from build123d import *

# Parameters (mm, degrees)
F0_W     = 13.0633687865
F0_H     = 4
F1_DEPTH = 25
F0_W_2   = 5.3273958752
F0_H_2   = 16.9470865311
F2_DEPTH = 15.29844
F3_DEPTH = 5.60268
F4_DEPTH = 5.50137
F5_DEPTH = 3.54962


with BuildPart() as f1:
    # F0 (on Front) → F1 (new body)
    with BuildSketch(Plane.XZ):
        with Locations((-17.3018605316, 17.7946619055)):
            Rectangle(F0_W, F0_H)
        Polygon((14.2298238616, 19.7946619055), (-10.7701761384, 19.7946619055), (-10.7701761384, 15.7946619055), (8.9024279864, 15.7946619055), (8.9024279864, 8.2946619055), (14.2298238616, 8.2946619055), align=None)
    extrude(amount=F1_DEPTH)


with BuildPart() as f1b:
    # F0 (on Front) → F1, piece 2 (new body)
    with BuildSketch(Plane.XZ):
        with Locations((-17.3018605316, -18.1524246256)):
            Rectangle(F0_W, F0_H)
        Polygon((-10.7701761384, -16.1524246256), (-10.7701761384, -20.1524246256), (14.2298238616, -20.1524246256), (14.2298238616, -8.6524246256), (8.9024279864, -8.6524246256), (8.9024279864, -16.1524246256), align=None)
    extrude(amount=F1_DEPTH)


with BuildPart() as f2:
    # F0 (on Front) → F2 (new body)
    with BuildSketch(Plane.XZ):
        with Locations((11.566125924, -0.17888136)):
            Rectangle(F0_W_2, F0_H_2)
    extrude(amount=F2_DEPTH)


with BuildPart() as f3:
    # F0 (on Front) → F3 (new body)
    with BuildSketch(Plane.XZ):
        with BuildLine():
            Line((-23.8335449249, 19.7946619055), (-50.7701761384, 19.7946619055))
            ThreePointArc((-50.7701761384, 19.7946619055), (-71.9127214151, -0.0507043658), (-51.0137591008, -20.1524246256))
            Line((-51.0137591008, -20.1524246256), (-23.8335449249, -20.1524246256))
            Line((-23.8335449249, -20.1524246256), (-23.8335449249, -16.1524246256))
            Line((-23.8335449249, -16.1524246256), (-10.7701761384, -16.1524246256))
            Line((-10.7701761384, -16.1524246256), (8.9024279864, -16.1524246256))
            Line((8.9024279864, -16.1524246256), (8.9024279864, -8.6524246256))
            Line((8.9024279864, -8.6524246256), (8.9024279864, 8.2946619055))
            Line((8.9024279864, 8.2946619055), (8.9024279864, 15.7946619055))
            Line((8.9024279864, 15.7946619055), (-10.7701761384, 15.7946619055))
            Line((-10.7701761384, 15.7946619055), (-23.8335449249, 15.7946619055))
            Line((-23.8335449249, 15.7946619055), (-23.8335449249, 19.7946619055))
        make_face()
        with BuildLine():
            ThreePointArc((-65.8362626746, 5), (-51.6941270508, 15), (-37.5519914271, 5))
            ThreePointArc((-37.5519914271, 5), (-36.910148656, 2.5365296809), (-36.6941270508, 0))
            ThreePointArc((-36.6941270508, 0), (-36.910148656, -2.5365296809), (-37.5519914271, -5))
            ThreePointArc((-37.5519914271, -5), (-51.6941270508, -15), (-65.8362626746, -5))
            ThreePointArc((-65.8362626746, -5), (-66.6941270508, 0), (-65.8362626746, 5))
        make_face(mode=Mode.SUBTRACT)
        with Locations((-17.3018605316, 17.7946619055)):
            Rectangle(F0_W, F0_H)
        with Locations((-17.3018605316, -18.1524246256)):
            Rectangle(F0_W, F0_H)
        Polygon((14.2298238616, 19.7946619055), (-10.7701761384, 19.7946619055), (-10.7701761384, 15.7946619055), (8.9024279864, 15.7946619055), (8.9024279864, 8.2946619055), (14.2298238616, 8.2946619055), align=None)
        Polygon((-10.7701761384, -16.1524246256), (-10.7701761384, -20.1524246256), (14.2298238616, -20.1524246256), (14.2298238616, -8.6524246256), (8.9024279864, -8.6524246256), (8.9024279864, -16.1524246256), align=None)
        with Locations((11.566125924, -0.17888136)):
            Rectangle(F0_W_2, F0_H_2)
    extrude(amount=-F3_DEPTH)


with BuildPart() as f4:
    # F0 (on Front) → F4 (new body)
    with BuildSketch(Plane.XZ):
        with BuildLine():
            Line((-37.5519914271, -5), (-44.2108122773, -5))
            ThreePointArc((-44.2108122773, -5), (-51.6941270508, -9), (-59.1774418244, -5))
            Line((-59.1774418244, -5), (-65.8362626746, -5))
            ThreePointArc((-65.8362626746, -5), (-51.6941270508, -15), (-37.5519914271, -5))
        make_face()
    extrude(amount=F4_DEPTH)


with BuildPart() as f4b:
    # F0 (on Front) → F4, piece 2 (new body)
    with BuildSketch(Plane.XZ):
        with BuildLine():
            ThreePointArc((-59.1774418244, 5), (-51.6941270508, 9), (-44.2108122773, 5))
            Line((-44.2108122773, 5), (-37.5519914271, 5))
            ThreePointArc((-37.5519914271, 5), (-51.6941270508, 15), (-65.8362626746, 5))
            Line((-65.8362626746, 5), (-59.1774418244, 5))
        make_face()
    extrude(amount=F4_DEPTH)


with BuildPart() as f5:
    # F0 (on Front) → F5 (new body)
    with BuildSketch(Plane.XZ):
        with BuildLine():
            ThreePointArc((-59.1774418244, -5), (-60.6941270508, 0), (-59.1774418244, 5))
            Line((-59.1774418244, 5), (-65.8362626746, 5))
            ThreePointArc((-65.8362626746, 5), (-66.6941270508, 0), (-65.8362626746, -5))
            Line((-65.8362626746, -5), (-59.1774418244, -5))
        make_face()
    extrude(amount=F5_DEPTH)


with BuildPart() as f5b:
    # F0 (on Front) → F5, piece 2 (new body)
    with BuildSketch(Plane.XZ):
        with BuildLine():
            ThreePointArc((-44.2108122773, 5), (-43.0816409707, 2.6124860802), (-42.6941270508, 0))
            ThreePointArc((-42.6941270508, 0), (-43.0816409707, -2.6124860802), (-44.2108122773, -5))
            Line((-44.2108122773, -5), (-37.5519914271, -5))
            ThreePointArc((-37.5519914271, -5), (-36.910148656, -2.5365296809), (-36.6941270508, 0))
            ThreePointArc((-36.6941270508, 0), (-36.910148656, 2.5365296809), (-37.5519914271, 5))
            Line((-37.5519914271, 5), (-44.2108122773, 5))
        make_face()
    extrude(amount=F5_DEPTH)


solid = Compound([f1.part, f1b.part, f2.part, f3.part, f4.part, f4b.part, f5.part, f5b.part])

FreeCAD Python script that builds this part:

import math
import FreeCAD as App
import Part
import Sketcher
from FreeCAD import Vector

doc = App.newDocument("Part")
body = doc.addObject("PartDesign::Body", "Body")

sketch1 = doc.addObject("Sketcher::SketchObject", "Sketch")
body.addObject(sketch1)
sketch1.AttachmentSupport = (doc.XZ_Plane, [""])
sketch1.MapMode = "FlatFace"
sketch1.addGeometry(Part.LineSegment(Vector(-23.8, 19.8, 0), Vector(-23.8, 15.8, 0)), False)
sketch1.addGeometry(Part.LineSegment(Vector(-23.8, 15.8, 0), Vector(8.9, 15.8, 0)), False)
sketch1.addGeometry(Part.LineSegment(Vector(8.9, 15.8, 0), Vector(8.9, 8.3, 0)), False)
sketch1.addGeometry(Part.LineSegment(Vector(8.9, 8.3, 0), Vector(14.2, 8.3, 0)), False)
sketch1.addGeometry(Part.LineSegment(Vector(14.2, 8.3, 0), Vector(14.2, 19.8, 0)), False)
sketch1.addGeometry(Part.LineSegment(Vector(14.2, 19.8, 0), Vector(-23.8, 19.8, 0)), False)
sketch1.addConstraint(Sketcher.Constraint("Coincident", 0, 2, 1, 1))
sketch1.addConstraint(Sketcher.Constraint("Coincident", 1, 2, 2, 1))
sketch1.addConstraint(Sketcher.Constraint("Coincident", 2, 2, 3, 1))
sketch1.addConstraint(Sketcher.Constraint("Coincident", 3, 2, 4, 1))
sketch1.addConstraint(Sketcher.Constraint("Coincident", 4, 2, 5, 1))
sketch1.addConstraint(Sketcher.Constraint("Coincident", 5, 2, 0, 1))
sketch1.addConstraint(Sketcher.Constraint("Vertical", 0))
sketch1.addConstraint(Sketcher.Constraint("Horizontal", 1))
sketch1.addConstraint(Sketcher.Constraint("Vertical", 2))
sketch1.addConstraint(Sketcher.Constraint("Horizontal", 3))
sketch1.addConstraint(Sketcher.Constraint("Vertical", 4))
sketch1.addConstraint(Sketcher.Constraint("Horizontal", 5))
sketch1.addConstraint(Sketcher.Constraint("DistanceY", 0, 2, 0, 1, 4.0))
sketch1.addConstraint(Sketcher.Constraint("DistanceY", 2, 2, 2, 1, 7.5))
sketch1.addConstraint(Sketcher.Constraint("DistanceX", 5, 2, 5, 1, 38.063369))
sketch1.addConstraint(Sketcher.Constraint("DistanceX", 1, 1, 1, 2, 32.735973))
sketch1.addConstraint(Sketcher.Constraint("DistanceY", -1, 1, 0, 2, 15.794662))
sketch1.addConstraint(Sketcher.Constraint("DistanceX", 0, 2, -1, 1, 23.833545))
pad1 = doc.addObject("PartDesign::Pad", "Pad")
body.addObject(pad1)
pad1.Profile = sketch1
pad1.Length = 25
body2 = doc.addObject("PartDesign::Body", "Body001")

sketch2 = doc.addObject("Sketcher::SketchObject", "Sketch001")
body2.addObject(sketch2)
sketch2.AttachmentSupport = (doc.getObject("XZ_Plane001"), [""])
sketch2.MapMode = "FlatFace"
sketch2.addGeometry(Part.LineSegment(Vector(-23.8, -16.2, 0), Vector(-23.8, -20.2, 0)), False)
sketch2.addGeometry(Part.LineSegment(Vector(-23.8, -20.2, 0), Vector(14.2, -20.2, 0)), False)
sketch2.addGeometry(Part.LineSegment(Vector(14.2, -20.2, 0), Vector(14.2, -8.7, 0)), False)
sketch2.addGeometry(Part.LineSegment(Vector(14.2, -8.7, 0), Vector(8.9, -8.7, 0)), False)
sketch2.addGeometry(Part.LineSegment(Vector(8.9, -8.7, 0), Vector(8.9, -16.2, 0)), False)
sketch2.addGeometry(Part.LineSegment(Vector(8.9, -16.2, 0), Vector(-23.8, -16.2, 0)), False)
sketch2.addConstraint(Sketcher.Constraint("Coincident", 0, 2, 1, 1))
sketch2.addConstraint(Sketcher.Constraint("Coincident", 1, 2, 2, 1))
sketch2.addConstraint(Sketcher.Constraint("Coincident", 2, 2, 3, 1))
sketch2.addConstraint(Sketcher.Constraint("Coincident", 3, 2, 4, 1))
sketch2.addConstraint(Sketcher.Constraint("Coincident", 4, 2, 5, 1))
sketch2.addConstraint(Sketcher.Constraint("Coincident", 5, 2, 0, 1))
sketch2.addConstraint(Sketcher.Constraint("Vertical", 0))
sketch2.addConstraint(Sketcher.Constraint("Horizontal", 1))
sketch2.addConstraint(Sketcher.Constraint("Vertical", 2))
sketch2.addConstraint(Sketcher.Constraint("Horizontal", 3))
sketch2.addConstraint(Sketcher.Constraint("Vertical", 4))
sketch2.addConstraint(Sketcher.Constraint("Horizontal", 5))
sketch2.addConstraint(Sketcher.Constraint("DistanceY", 0, 2, 0, 1, 4.0))
sketch2.addConstraint(Sketcher.Constraint("DistanceY", 2, 1, 2, 2, 11.5))
sketch2.addConstraint(Sketcher.Constraint("DistanceX", 1, 1, 1, 2, 38.063369))
sketch2.addConstraint(Sketcher.Constraint("DistanceX", 3, 2, 3, 1, 5.327396))
sketch2.addConstraint(Sketcher.Constraint("DistanceX", 0, 2, -1, 1, 23.833545))
sketch2.addConstraint(Sketcher.Constraint("DistanceY", 0, 2, -1, 1, 20.152425))
pad2 = doc.addObject("PartDesign::Pad", "Pad001")
body2.addObject(pad2)
pad2.Profile = sketch2
pad2.Length = 25
body3 = doc.addObject("PartDesign::Body", "Body002")

sketch3 = doc.addObject("Sketcher::SketchObject", "Sketch002")
body3.addObject(sketch3)
sketch3.AttachmentSupport = (doc.getObject("XZ_Plane002"), [""])
sketch3.MapMode = "FlatFace"
sketch3.addGeometry(Part.LineSegment(Vector(9, 8, 0), Vector(9, -9, 0)), False)
sketch3.addGeometry(Part.LineSegment(Vector(9, -9, 0), Vector(14, -9, 0)), False)
sketch3.addGeometry(Part.LineSegment(Vector(14, -9, 0), Vector(14, 8, 0)), False)
sketch3.addGeometry(Part.LineSegment(Vector(14, 8, 0), Vector(9, 8, 0)), False)
sketch3.addConstraint(Sketcher.Constraint("Coincident", 0, 2, 1, 1))
sketch3.addConstraint(Sketcher.Constraint("Coincident", 1, 2, 2, 1))
sketch3.addConstraint(Sketcher.Constraint("Coincident", 2, 2, 3, 1))
sketch3.addConstraint(Sketcher.Constraint("Coincident", 3, 2, 0, 1))
sketch3.addConstraint(Sketcher.Constraint("Vertical", 0))
sketch3.addConstraint(Sketcher.Constraint("Horizontal", 1))
sketch3.addConstraint(Sketcher.Constraint("Vertical", 2))
sketch3.addConstraint(Sketcher.Constraint("Horizontal", 3))
sketch3.addConstraint(Sketcher.Constraint("DistanceX", 1, 1, 1, 2, 5.327396))
sketch3.addConstraint(Sketcher.Constraint("DistanceY", 0, 2, 0, 1, 16.947087))
sketch3.addConstraint(Sketcher.Constraint("DistanceY", -1, 1, 2, 2, 8.294662))
sketch3.addConstraint(Sketcher.Constraint("DistanceX", -1, 1, 0, 2, 8.902428))
pad3 = doc.addObject("PartDesign::Pad", "Pad002")
body3.addObject(pad3)
pad3.Profile = sketch3
pad3.Length = 15.29844
body4 = doc.addObject("PartDesign::Body", "Body003")

sketch4 = doc.addObject("Sketcher::SketchObject", "Sketch003")
body4.addObject(sketch4)
sketch4.AttachmentSupport = (doc.getObject("XZ_Plane003"), [""])
sketch4.MapMode = "FlatFace"
sketch4.addGeometry(Part.ArcOfCircle(Part.Circle(Vector(-52, 0, 0), Vector(0, 0, 1), 20), math.radians(87), math.radians(273)), False)
sketch4.addGeometry(Part.LineSegment(Vector(-51, -20, 0), Vector(14, -20, 0)), False)
sketch4.addGeometry(Part.LineSegment(Vector(14, -20, 0), Vector(14, 20, 0)), False)
sketch4.addGeometry(Part.LineSegment(Vector(14, 20, 0), Vector(-51, 20, 0)), False)
sketch4.addGeometry(Part.ArcOfCircle(Part.Circle(Vector(-52, 0, 0), Vector(0, 0, 1), 15), math.radians(161), math.radians(199)), False)
sketch4.addGeometry(Part.ArcOfCircle(Part.Circle(Vector(-52, 0, 0), Vector(0, 0, 1), 15), math.radians(19), math.radians(161)), False)
sketch4.addGeometry(Part.ArcOfCircle(Part.Circle(Vector(-52, 0, 0), Vector(0, 0, 1), 15), math.radians(0), math.radians(19.47)), False)
sketch4.addGeometry(Part.ArcOfCircle(Part.Circle(Vector(-52, 0, 0), Vector(0, 0, 1), 15), math.radians(-19.47), math.radians(0)), False)
sketch4.addGeometry(Part.ArcOfCircle(Part.Circle(Vector(-52, 0, 0), Vector(0, 0, 1), 15), math.radians(-161), math.radians(-19)), False)
sketch4.addConstraint(Sketcher.Constraint("Coincident", 0, 2, 1, 1))
sketch4.addConstraint(Sketcher.Constraint("Coincident", 1, 2, 2, 1))
sketch4.addConstraint(Sketcher.Constraint("Coincident", 2, 2, 3, 1))
sketch4.addConstraint(Sketcher.Constraint("Coincident", 3, 2, 0, 1))
sketch4.addConstraint(Sketcher.Constraint("Tangent", 4, 1, 5, 2))
sketch4.addConstraint(Sketcher.Constraint("Tangent", 5, 1, 6, 2))
sketch4.addConstraint(Sketcher.Constraint("Tangent", 6, 1, 7, 2))
sketch4.addConstraint(Sketcher.Constraint("Tangent", 7, 1, 8, 2))
sketch4.addConstraint(Sketcher.Constraint("Tangent", 8, 1, 4, 2))
sketch4.addConstraint(Sketcher.Constraint("Horizontal", 1))
sketch4.addConstraint(Sketcher.Constraint("Vertical", 2))
sketch4.addConstraint(Sketcher.Constraint("Horizontal", 3))
sketch4.addConstraint(Sketcher.Constraint("Coincident", 6, 3, 4, 3))
sketch4.addConstraint(Sketcher.Constraint("Symmetric", 5, 1, 7, 1, -1))
sketch4.addConstraint(Sketcher.Constraint("PointOnObject", 6, 1, -1))
sketch4.addConstraint(Sketcher.Constraint("Horizontal", 4, 1, 5, 1))
sketch4.addConstraint(Sketcher.Constraint("Horizontal", 7, 1, 8, 1))
sketch4.addConstraint(Sketcher.Constraint("Radius", 0, 20.0))
sketch4.addConstraint(Sketcher.Constraint("Radius", 4, 15.0))
sketch4.addConstraint(Sketcher.Constraint("DistanceX", 3, 2, 3, 1, 65.0))
sketch4.addConstraint(Sketcher.Constraint("DistanceY", -1, 1, 4, 1, 5.0))
sketch4.addConstraint(Sketcher.Constraint("DistanceX", 1, 1, 1, 2, 65.243583))
sketch4.addConstraint(Sketcher.Constraint("DistanceY", 2, 1, 2, 2, 39.947087))
sketch4.addConstraint(Sketcher.Constraint("DistanceX", 0, 2, -1, 1, 51.013759))
sketch4.addConstraint(Sketcher.Constraint("DistanceY", -1, 1, 2, 2, 19.794662))
sketch4.addConstraint(Sketcher.Constraint("DistanceX", 5, 1, -1, 1, 37.551991))
pad4 = doc.addObject("PartDesign::Pad", "Pad003")
body4.addObject(pad4)
pad4.Profile = sketch4
pad4.Length = 5.60268
pad4.Reversed = True
body5 = doc.addObject("PartDesign::Body", "Body004")

sketch5 = doc.addObject("Sketcher::SketchObject", "Sketch004")
body5.addObject(sketch5)
sketch5.AttachmentSupport = (doc.getObject("XZ_Plane004"), [""])
sketch5.MapMode = "FlatFace"
sketch5.addGeometry(Part.LineSegment(Vector(-38, -5, 0), Vector(-44, -5, 0)), False)
sketch5.addGeometry(Part.ArcOfCircle(Part.Circle(Vector(-52, 0, 0), Vector(0, 0, 1), 9), math.radians(-146), math.radians(-34)), False)
sketch5.addGeometry(Part.LineSegment(Vector(-59, -5, 0), Vector(-66, -5, 0)), False)
sketch5.addGeometry(Part.ArcOfCircle(Part.Circle(Vector(-52, 0, 0), Vector(0, 0, 1), 15), math.radians(-161), math.radians(-19)), False)
sketch5.addConstraint(Sketcher.Constraint("Coincident", 0, 2, 1, 2))
sketch5.addConstraint(Sketcher.Constraint("Coincident", 1, 1, 2, 1))
sketch5.addConstraint(Sketcher.Constraint("Coincident", 2, 2, 3, 1))
sketch5.addConstraint(Sketcher.Constraint("Coincident", 3, 2, 0, 1))
sketch5.addConstraint(Sketcher.Constraint("Horizontal", 0))
sketch5.addConstraint(Sketcher.Constraint("Horizontal", 2))
sketch5.addConstraint(Sketcher.Constraint("Coincident", 3, 3, 1, 3))
sketch5.addConstraint(Sketcher.Constraint("PointOnObject", 1, 3, -1))
sketch5.addConstraint(Sketcher.Constraint("Horizontal", 0, 2, 1, 1))
sketch5.addConstraint(Sketcher.Constraint("Radius", 1, 9.0))
sketch5.addConstraint(Sketcher.Constraint("Radius", 3, 15.0))
sketch5.addConstraint(Sketcher.Constraint("DistanceY", 0, 2, -1, 1, 5.0))
sketch5.addConstraint(Sketcher.Constraint("DistanceX", 1, 1, -1, 1, 59.177442))
pad5 = doc.addObject("PartDesign::Pad", "Pad004")
body5.addObject(pad5)
pad5.Profile = sketch5
pad5.Length = 5.50137
body6 = doc.addObject("PartDesign::Body", "Body005")

sketch6 = doc.addObject("Sketcher::SketchObject", "Sketch005")
body6.addObject(sketch6)
sketch6.AttachmentSupport = (doc.getObject("XZ_Plane005"), [""])
sketch6.MapMode = "FlatFace"
sketch6.addGeometry(Part.ArcOfCircle(Part.Circle(Vector(-52, 0, 0), Vector(0, 0, 1), 9), math.radians(34), math.radians(146)), False)
sketch6.addGeometry(Part.LineSegment(Vector(-44, 5, 0), Vector(-38, 5, 0)), False)
sketch6.addGeometry(Part.ArcOfCircle(Part.Circle(Vector(-52, 0, 0), Vector(0, 0, 1), 15), math.radians(19), math.radians(161)), False)
sketch6.addGeometry(Part.LineSegment(Vector(-66, 5, 0), Vector(-59, 5, 0)), False)
sketch6.addConstraint(Sketcher.Constraint("Coincident", 0, 1, 1, 1))
sketch6.addConstraint(Sketcher.Constraint("Coincident", 1, 2, 2, 1))
sketch6.addConstraint(Sketcher.Constraint("Coincident", 2, 2, 3, 1))
sketch6.addConstraint(Sketcher.Constraint("Coincident", 3, 2, 0, 2))
sketch6.addConstraint(Sketcher.Constraint("Horizontal", 1))
sketch6.addConstraint(Sketcher.Constraint("Horizontal", 3))
sketch6.addConstraint(Sketcher.Constraint("Coincident", 2, 3, 0, 3))
sketch6.addConstraint(Sketcher.Constraint("PointOnObject", 0, 3, -1))
sketch6.addConstraint(Sketcher.Constraint("Horizontal", 1, 2, 2, 2))
sketch6.addConstraint(Sketcher.Constraint("Radius", 0, 9.0))
sketch6.addConstraint(Sketcher.Constraint("Radius", 2, 15.0))
sketch6.addConstraint(Sketcher.Constraint("DistanceY", -1, 1, 0, 1, 5.0))
sketch6.addConstraint(Sketcher.Constraint("DistanceX", 1, 2, -1, 1, 37.551991))
pad6 = doc.addObject("PartDesign::Pad", "Pad005")
body6.addObject(pad6)
pad6.Profile = sketch6
pad6.Length = 5.50137
body7 = doc.addObject("PartDesign::Body", "Body006")

sketch7 = doc.addObject("Sketcher::SketchObject", "Sketch006")
body7.addObject(sketch7)
sketch7.AttachmentSupport = (doc.getObject("XZ_Plane006"), [""])
sketch7.MapMode = "FlatFace"
sketch7.addGeometry(Part.ArcOfCircle(Part.Circle(Vector(-52, 0, 0), Vector(0, 0, 1), 9), math.radians(146), math.radians(214)), False)
sketch7.addGeometry(Part.LineSegment(Vector(-59, 5, 0), Vector(-66, 5, 0)), False)
sketch7.addGeometry(Part.ArcOfCircle(Part.Circle(Vector(-52, 0, 0), Vector(0, 0, 1), 15), math.radians(161), math.radians(199)), False)
sketch7.addGeometry(Part.LineSegment(Vector(-66, -5, 0), Vector(-59, -5, 0)), False)
sketch7.addConstraint(Sketcher.Constraint("Coincident", 0, 1, 1, 1))
sketch7.addConstraint(Sketcher.Constraint("Coincident", 1, 2, 2, 1))
sketch7.addConstraint(Sketcher.Constraint("Coincident", 2, 2, 3, 1))
sketch7.addConstraint(Sketcher.Constraint("Coincident", 3, 2, 0, 2))
sketch7.addConstraint(Sketcher.Constraint("Horizontal", 1))
sketch7.addConstraint(Sketcher.Constraint("Horizontal", 3))
sketch7.addConstraint(Sketcher.Constraint("Coincident", 2, 3, 0, 3))
sketch7.addConstraint(Sketcher.Constraint("Symmetric", 1, 2, 2, 2, -1))
sketch7.addConstraint(Sketcher.Constraint("Radius", 0, 9.0))
sketch7.addConstraint(Sketcher.Constraint("Radius", 2, 15.0))
sketch7.addConstraint(Sketcher.Constraint("DistanceY", -1, 1, 0, 1, 5.0))
sketch7.addConstraint(Sketcher.Constraint("DistanceX", 0, 1, -1, 1, 59.177442))
pad7 = doc.addObject("PartDesign::Pad", "Pad006")
body7.addObject(pad7)
pad7.Profile = sketch7
pad7.Length = 3.54962
body8 = doc.addObject("PartDesign::Body", "Body007")

sketch8 = doc.addObject("Sketcher::SketchObject", "Sketch007")
body8.addObject(sketch8)
sketch8.AttachmentSupport = (doc.getObject("XZ_Plane007"), [""])
sketch8.MapMode = "FlatFace"
sketch8.addGeometry(Part.ArcOfCircle(Part.Circle(Vector(-52, 0, 0), Vector(0, 0, 1), 9), math.radians(0), math.radians(34)), False)
sketch8.addGeometry(Part.ArcOfCircle(Part.Circle(Vector(-52, 0, 0), Vector(0, 0, 1), 9), math.radians(-34), math.radians(0)), False)
sketch8.addGeometry(Part.LineSegment(Vector(-44, -5, 0), Vector(-38, -5, 0)), False)
sketch8.addGeometry(Part.ArcOfCircle(Part.Circle(Vector(-52, 0, 0), Vector(0, 0, 1), 15), math.radians(-19.47), math.radians(0)), False)
sketch8.addGeometry(Part.ArcOfCircle(Part.Circle(Vector(-52, 0, 0), Vector(0, 0, 1), 15), math.radians(0), math.radians(19.47)), False)
sketch8.addGeometry(Part.LineSegment(Vector(-38, 5, 0), Vector(-44, 5, 0)), False)
sketch8.addConstraint(Sketcher.Constraint("Tangent", 0, 1, 1, 2))
sketch8.addConstraint(Sketcher.Constraint("Coincident", 1, 1, 2, 1))
sketch8.addConstraint(Sketcher.Constraint("Coincident", 2, 2, 3, 1))
sketch8.addConstraint(Sketcher.Constraint("Tangent", 3, 2, 4, 1))
sketch8.addConstraint(Sketcher.Constraint("Coincident", 4, 2, 5, 1))
sketch8.addConstraint(Sketcher.Constraint("Coincident", 5, 2, 0, 2))
sketch8.addConstraint(Sketcher.Constraint("Horizontal", 2))
sketch8.addConstraint(Sketcher.Constraint("Horizontal", 5))
sketch8.addConstraint(Sketcher.Constraint("Coincident", 3, 3, 0, 3))
sketch8.addConstraint(Sketcher.Constraint("Equal", 0, 1))
sketch8.addConstraint(Sketcher.Constraint("Equal", 3, 4))
sketch8.addConstraint(Sketcher.Constraint("Symmetric", 2, 2, 4, 2, -1))
sketch8.addConstraint(Sketcher.Constraint("PointOnObject", 0, 1, -1))
sketch8.addConstraint(Sketcher.Constraint("PointOnObject", 3, 2, -1))
sketch8.addConstraint(Sketcher.Constraint("Radius", 0, 9.0))
sketch8.addConstraint(Sketcher.Constraint("Radius", 3, 15.0))
sketch8.addConstraint(Sketcher.Constraint("DistanceY", 1, 1, -1, 1, 5.0))
sketch8.addConstraint(Sketcher.Constraint("DistanceX", 2, 2, -1, 1, 37.551991))
pad8 = doc.addObject("PartDesign::Pad", "Pad007")
body8.addObject(pad8)
pad8.Profile = sketch8
pad8.Length = 3.54962

doc.recompute()
